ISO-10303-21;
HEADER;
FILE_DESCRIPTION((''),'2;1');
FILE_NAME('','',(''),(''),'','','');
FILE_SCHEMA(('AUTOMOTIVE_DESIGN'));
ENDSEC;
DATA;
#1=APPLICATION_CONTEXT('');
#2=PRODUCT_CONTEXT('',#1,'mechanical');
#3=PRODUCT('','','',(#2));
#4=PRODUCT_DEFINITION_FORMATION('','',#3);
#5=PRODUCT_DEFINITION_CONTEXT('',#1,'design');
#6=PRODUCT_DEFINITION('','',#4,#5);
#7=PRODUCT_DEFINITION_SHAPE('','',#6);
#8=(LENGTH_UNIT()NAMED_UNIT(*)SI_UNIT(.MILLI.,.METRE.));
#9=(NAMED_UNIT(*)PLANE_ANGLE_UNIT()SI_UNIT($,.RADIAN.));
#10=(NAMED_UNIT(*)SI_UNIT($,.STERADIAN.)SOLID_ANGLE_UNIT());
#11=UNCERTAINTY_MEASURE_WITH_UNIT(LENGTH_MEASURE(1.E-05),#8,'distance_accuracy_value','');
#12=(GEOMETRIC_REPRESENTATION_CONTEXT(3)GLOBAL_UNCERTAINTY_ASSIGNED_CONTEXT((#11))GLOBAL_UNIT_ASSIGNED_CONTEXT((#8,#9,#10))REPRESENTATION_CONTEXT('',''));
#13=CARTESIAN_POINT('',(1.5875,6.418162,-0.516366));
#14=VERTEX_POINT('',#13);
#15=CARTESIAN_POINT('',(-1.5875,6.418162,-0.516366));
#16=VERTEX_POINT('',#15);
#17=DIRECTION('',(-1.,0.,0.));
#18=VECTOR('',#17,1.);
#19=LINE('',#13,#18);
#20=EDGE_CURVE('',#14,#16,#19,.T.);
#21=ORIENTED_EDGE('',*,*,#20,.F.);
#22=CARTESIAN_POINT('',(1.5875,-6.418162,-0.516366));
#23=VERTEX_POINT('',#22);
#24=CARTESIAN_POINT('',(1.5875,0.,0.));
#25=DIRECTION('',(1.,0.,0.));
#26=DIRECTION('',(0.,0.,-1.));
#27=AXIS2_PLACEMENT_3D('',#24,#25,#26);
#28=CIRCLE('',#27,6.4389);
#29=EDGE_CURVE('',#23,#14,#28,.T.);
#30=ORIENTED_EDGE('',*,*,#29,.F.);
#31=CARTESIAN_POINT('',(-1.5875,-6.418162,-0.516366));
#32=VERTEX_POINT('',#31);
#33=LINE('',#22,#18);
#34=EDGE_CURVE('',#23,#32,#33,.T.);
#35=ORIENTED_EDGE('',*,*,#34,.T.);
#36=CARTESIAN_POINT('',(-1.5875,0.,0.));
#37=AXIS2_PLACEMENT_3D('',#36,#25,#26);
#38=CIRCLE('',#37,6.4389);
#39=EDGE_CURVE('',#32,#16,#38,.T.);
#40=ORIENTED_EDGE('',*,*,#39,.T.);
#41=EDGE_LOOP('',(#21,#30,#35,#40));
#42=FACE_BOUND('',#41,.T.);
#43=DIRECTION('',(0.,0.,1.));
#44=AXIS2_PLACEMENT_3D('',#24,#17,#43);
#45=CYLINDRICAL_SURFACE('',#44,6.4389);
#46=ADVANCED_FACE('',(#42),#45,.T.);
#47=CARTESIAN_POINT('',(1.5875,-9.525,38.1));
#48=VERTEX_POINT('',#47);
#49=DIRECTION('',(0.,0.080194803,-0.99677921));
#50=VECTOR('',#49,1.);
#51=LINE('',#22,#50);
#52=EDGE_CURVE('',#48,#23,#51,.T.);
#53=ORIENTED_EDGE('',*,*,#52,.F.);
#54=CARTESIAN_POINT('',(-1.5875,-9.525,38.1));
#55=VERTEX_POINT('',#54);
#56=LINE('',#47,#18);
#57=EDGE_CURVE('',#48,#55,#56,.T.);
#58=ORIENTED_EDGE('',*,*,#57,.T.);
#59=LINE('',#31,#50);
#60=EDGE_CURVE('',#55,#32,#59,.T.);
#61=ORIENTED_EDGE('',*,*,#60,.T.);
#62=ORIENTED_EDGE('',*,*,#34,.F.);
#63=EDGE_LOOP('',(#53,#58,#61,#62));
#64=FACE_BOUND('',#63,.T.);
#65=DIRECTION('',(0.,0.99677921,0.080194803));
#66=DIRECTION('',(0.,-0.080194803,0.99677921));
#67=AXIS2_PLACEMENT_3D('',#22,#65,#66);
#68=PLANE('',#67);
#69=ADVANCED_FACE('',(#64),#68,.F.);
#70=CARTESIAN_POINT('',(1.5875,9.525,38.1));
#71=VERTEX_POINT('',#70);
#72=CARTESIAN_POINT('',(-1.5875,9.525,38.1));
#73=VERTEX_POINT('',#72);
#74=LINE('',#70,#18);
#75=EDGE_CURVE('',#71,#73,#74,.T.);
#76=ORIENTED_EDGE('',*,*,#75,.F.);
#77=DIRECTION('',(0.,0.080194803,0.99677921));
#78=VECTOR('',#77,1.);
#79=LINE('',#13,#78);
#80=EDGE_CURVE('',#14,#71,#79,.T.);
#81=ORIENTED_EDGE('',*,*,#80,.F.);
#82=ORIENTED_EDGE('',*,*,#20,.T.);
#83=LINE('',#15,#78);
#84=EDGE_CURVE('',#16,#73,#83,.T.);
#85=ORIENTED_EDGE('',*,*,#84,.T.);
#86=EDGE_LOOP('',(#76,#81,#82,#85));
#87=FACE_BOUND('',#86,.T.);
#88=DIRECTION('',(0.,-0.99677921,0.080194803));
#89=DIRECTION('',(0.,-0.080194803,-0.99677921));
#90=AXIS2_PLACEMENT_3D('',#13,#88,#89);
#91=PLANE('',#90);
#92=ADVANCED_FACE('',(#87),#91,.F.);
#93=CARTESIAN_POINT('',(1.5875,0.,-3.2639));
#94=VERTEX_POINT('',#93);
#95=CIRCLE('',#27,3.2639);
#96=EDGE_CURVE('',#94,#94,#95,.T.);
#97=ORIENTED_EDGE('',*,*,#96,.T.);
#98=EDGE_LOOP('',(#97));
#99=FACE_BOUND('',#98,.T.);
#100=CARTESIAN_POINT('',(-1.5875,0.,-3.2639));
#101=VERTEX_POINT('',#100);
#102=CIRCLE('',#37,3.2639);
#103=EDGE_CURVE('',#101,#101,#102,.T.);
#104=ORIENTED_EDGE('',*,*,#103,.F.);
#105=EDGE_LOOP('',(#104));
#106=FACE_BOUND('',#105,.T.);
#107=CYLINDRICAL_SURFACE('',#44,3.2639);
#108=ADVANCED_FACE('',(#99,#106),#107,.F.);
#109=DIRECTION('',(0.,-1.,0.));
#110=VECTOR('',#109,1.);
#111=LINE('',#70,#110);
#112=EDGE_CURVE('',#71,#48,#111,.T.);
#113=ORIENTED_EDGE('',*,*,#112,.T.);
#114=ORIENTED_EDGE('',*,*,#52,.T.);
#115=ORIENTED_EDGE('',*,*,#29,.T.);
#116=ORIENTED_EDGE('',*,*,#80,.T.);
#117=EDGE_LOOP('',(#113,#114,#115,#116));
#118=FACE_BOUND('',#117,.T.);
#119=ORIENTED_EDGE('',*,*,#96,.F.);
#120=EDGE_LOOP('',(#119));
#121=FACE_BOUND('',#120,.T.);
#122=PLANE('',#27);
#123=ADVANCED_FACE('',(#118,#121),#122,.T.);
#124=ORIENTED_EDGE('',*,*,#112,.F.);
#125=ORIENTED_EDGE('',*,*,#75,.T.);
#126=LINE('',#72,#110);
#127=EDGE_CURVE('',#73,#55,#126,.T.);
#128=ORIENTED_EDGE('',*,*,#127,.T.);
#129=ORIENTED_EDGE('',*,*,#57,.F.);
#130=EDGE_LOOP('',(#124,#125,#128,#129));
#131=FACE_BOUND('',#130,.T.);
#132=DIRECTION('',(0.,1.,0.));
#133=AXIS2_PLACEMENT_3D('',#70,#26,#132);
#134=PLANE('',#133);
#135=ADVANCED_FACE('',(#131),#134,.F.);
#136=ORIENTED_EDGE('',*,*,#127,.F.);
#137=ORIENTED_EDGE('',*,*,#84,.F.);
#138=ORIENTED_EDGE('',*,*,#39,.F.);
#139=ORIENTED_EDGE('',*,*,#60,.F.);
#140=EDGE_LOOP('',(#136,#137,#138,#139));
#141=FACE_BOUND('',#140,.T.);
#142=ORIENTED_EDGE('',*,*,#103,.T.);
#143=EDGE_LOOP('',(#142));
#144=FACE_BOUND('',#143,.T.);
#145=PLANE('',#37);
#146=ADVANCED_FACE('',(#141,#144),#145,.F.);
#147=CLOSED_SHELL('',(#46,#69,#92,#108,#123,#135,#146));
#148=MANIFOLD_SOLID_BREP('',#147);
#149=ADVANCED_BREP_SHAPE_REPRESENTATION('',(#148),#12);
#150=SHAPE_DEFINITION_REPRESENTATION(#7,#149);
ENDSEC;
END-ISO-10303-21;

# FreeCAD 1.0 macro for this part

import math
import FreeCAD as App
import Part
import Sketcher
from FreeCAD import Vector
Q = App.Units.Quantity

doc = App.newDocument("Part")
body = doc.addObject("PartDesign::Body", "Body")

sketch1 = body.newObject("Sketcher::SketchObject", "Sketch")
sketch1.AttachmentSupport = (doc.getObject("YZ_Plane"), [""])
sketch1.MapMode = "FlatFace"
sketch1.addGeometry([
    Part.LineSegment(Vector(9.525, 38.1, 0), Vector(-9.525, 38.1, 0)),
    Part.LineSegment(Vector(-9.525, 38.1, 0), Vector(-6.418162, -0.516366, 0)),
    Part.ArcOfCircle(Part.Circle(Vector(0, 0, 0), Vector(0, 0, 1), 6.4389), math.radians(-175.400237), math.radians(-4.599763)),
    Part.LineSegment(Vector(6.418162, -0.516366, 0), Vector(9.525, 38.1, 0)),
    Part.Circle(Vector(0, 0, 0), Vector(0, 0, 1), 3.2639),
], False)
sketch1.addConstraint([
    Sketcher.Constraint("Coincident", 0, 2, 1, 1),
    Sketcher.Constraint("Tangent", 1, 2, 2, 1),
    Sketcher.Constraint("Tangent", 2, 2, 3, 1),
    Sketcher.Constraint("Coincident", 3, 2, 0, 1),
    Sketcher.Constraint("Horizontal", 0),
    Sketcher.Constraint("Coincident", 2, 3, -1, 1),
    Sketcher.Constraint("Coincident", 4, 3, -1, 1),
    Sketcher.Constraint("Horizontal", 1, 2, 2, 2),
    Sketcher.Constraint("Diameter", 4, Q("0.257 in")),
    Sketcher.Constraint("DistanceX", 0, 2, 0, 1, Q("0.75 in")),
    Sketcher.Constraint("DistanceY", -1, 1, 0, 2, Q("1.5 in")),
    Sketcher.Constraint("Radius", 2, Q("0.2535 in")),
])
pad1 = body.newObject("PartDesign::Pad", "Pad")
pad1.Profile = sketch1
pad1.Length = Q("0.125 in")
pad1.Midplane = True

doc.recompute()
